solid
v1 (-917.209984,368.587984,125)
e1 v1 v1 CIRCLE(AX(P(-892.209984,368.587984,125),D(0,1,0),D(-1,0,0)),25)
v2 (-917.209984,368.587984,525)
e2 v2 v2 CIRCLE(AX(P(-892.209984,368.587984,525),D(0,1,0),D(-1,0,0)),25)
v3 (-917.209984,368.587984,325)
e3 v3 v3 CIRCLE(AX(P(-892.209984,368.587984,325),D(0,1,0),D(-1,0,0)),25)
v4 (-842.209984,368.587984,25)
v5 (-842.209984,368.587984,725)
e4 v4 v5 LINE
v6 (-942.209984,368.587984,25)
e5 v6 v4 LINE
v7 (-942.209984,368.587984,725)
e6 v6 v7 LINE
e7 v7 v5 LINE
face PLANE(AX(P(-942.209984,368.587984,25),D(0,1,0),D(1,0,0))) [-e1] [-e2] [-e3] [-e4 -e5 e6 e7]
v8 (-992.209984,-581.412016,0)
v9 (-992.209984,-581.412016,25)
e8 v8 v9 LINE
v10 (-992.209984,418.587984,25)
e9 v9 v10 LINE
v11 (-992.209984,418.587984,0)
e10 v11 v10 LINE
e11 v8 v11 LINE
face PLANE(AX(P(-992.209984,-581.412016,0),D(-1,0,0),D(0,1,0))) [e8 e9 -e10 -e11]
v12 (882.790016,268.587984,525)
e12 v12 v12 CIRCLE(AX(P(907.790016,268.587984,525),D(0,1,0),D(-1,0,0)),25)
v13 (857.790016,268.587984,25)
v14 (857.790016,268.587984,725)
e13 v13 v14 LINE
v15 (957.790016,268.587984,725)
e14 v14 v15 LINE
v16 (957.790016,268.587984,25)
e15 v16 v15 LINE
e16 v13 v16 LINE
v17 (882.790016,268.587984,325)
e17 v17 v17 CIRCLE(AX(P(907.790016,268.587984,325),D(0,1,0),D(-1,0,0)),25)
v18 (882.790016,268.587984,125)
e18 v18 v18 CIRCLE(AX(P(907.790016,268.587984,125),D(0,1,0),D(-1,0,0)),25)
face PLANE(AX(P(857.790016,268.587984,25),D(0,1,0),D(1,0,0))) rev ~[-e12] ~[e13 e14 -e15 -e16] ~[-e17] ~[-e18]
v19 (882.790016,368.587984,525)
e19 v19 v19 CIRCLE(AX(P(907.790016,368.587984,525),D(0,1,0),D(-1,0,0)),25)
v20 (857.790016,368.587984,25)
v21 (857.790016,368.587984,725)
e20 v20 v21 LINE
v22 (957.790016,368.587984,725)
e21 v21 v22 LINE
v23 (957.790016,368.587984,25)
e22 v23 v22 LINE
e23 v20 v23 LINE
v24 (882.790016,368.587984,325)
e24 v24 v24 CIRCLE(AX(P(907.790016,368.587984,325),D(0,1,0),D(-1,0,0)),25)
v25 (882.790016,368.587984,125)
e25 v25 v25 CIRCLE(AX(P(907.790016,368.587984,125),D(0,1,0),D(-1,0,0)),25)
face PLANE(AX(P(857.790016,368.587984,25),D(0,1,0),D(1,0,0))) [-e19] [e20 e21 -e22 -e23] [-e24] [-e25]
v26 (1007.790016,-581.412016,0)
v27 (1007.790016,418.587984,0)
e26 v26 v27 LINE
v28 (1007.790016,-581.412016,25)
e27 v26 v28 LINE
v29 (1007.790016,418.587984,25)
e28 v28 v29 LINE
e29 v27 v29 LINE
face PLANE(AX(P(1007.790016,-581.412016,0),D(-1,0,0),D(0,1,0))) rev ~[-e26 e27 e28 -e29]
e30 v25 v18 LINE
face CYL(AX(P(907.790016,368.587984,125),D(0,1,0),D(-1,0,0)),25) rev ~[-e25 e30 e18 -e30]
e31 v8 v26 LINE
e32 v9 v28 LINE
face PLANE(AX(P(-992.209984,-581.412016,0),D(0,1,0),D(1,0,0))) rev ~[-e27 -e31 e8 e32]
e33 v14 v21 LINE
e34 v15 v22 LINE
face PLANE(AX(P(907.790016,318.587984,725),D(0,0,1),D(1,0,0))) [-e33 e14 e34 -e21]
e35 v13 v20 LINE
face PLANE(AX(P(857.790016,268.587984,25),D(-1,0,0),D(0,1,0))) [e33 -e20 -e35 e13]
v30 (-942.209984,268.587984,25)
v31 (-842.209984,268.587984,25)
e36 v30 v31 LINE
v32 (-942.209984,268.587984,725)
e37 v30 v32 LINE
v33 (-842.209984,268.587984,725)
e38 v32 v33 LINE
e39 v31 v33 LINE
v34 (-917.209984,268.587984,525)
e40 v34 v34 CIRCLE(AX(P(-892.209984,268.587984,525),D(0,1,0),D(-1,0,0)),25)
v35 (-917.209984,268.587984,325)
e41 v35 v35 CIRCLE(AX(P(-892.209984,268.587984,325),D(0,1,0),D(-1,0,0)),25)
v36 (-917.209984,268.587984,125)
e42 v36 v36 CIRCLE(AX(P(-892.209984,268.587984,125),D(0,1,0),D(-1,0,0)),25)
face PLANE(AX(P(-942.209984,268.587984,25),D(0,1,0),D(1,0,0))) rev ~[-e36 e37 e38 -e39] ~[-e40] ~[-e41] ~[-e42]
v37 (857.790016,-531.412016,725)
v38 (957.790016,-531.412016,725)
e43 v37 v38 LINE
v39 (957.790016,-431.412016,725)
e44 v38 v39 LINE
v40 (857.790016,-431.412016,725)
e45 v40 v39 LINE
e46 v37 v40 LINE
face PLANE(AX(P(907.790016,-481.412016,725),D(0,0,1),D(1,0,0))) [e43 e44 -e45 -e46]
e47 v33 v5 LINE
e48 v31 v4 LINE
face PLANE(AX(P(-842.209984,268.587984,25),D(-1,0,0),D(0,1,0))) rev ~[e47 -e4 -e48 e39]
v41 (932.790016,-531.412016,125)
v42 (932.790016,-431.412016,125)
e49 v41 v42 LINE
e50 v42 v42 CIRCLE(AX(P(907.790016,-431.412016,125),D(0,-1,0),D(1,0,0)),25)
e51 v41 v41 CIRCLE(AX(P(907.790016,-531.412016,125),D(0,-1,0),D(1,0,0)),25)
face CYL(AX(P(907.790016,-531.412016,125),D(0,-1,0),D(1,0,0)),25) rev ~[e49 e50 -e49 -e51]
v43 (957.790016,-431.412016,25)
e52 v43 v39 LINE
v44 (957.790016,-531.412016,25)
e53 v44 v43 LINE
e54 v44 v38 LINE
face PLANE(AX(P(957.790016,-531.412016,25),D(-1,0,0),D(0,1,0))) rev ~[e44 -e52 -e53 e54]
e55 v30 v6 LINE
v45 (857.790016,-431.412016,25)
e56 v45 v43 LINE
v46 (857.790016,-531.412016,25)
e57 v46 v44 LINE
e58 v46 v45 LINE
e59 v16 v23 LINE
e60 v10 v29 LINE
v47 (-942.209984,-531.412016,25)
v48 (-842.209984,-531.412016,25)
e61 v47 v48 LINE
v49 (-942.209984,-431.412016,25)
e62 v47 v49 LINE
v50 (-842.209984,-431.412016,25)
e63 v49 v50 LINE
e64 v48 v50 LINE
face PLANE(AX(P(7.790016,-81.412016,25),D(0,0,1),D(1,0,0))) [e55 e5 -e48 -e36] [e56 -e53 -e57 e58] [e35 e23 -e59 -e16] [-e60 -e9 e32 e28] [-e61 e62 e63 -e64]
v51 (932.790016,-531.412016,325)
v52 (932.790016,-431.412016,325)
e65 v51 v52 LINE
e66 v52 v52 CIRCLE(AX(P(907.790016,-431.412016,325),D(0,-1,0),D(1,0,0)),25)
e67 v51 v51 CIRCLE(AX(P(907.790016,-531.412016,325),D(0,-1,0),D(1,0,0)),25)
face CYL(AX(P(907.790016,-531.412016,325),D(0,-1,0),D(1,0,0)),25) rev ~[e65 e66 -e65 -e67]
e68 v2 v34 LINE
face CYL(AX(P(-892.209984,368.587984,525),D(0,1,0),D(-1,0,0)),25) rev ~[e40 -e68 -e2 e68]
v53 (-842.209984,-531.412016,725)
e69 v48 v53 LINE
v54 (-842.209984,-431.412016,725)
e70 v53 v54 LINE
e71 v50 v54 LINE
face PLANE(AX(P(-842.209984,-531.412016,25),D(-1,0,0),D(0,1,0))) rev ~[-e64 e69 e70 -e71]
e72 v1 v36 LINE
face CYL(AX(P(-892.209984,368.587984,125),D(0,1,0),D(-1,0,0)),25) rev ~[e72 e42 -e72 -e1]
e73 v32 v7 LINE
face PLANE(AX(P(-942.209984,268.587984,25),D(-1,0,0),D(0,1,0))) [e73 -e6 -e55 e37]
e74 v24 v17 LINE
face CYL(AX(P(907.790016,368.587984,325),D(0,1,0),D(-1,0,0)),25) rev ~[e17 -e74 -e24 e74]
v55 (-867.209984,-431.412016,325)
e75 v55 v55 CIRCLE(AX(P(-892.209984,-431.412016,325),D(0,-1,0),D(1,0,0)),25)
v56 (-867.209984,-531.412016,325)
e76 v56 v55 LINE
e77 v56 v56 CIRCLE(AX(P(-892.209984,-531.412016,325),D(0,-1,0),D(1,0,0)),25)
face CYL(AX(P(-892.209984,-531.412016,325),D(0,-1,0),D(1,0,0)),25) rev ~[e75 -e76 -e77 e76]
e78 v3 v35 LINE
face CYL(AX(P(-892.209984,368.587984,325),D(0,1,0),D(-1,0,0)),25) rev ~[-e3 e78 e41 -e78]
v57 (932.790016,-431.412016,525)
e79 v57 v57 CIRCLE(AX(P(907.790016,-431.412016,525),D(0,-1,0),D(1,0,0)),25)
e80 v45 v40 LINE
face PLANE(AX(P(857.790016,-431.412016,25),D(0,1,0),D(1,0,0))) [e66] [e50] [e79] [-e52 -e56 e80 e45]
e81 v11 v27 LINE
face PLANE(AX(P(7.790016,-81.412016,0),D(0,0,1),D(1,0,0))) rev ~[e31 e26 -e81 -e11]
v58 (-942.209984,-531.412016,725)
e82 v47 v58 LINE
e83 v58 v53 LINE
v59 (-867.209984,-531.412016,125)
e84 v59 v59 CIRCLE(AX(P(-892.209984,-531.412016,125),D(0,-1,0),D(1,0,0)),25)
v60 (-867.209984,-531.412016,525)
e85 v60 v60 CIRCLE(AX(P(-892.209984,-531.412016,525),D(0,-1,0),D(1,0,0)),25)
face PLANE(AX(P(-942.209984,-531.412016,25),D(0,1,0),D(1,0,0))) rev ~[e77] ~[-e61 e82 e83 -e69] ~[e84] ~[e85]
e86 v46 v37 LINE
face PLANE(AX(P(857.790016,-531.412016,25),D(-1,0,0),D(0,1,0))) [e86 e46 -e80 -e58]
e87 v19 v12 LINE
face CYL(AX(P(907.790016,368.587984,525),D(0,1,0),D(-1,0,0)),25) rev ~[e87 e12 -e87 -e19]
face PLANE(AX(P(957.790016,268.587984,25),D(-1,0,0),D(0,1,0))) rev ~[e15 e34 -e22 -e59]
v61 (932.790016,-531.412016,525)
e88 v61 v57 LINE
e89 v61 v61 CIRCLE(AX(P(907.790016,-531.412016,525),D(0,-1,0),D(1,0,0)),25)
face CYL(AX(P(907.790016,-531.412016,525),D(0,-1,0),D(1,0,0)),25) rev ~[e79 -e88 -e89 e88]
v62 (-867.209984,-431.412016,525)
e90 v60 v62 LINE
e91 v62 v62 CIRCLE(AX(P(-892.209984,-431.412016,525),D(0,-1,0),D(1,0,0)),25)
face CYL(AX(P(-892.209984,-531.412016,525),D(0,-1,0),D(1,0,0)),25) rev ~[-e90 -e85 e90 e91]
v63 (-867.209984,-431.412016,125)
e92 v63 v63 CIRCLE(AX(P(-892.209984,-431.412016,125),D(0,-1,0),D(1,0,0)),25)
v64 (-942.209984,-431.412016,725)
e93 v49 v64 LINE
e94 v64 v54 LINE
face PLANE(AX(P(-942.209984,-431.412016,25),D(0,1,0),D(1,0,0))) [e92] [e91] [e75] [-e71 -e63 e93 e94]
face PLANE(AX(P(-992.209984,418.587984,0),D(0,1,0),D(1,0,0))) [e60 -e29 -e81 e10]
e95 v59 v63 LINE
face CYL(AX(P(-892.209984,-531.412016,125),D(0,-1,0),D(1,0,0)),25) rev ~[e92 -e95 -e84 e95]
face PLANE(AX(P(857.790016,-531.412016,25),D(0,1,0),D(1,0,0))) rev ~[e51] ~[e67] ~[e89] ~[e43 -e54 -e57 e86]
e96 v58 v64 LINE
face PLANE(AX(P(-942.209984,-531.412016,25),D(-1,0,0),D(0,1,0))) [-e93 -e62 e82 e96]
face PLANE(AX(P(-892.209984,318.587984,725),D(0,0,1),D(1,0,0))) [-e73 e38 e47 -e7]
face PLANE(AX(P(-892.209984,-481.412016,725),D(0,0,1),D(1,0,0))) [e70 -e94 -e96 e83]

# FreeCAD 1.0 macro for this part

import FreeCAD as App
import Part
import Sketcher

V = App.Vector


def add_polygon(sketch, points):
    """Adds a closed chain of lines whose ends are joined by coincident constraints."""
    first, n = sketch.GeometryCount, len(points)
    for a, b in zip(points, points[1:] + points[:1]):
        sketch.addGeometry(Part.LineSegment(App.Vector(*a, 0), App.Vector(*b, 0)), False)
    for i in range(n):
        sketch.addConstraint(Sketcher.Constraint("Coincident", first + i, 2, first + (i + 1) % n, 1))

doc = App.newDocument("Part")
body = doc.addObject("PartDesign::Body", "Body")

# Sketch on XY plane
sketch1 = doc.addObject("Sketcher::SketchObject", "Sketch")
body.addObject(sketch1)
sketch1.AttachmentSupport = (doc.XY_Plane, [""])
sketch1.MapMode = "FlatFace"
add_polygon(sketch1, [(-992.209984, 418.587984), (-992.209984, -581.412016), (1007.790016, -581.412016), (1007.790016, 418.587984)])  # lines 0-3
sketch1.addConstraint([
    Sketcher.Constraint("Vertical", 0),
    Sketcher.Constraint("Horizontal", 1),
    Sketcher.Constraint("Vertical", 2),
    Sketcher.Constraint("Horizontal", 3),
    Sketcher.Constraint("DistanceX", 1, 1, 1, 2, 2000.0),
    Sketcher.Constraint("DistanceY", 0, 2, 0, 1, 1000.0),
    Sketcher.Constraint("DistanceX", 0, 2, -1, 1, 992.209984),
    Sketcher.Constraint("DistanceY", 0, 2, -1, 1, 581.412016),
])
pad1 = doc.addObject("PartDesign::Pad", "Pad")
body.addObject(pad1)
pad1.Profile = sketch1
pad1.Length = 25

# Sketch on XY plane
sketch2 = doc.addObject("Sketcher::SketchObject", "Sketch001")
body.addObject(sketch2)
sketch2.AttachmentSupport = (doc.XY_Plane, [""])
sketch2.MapMode = "FlatFace"
sketch2.AttachmentOffset = App.Placement(V(0, 0, 25), App.Rotation())
add_polygon(sketch2, [(-942.209984, 368.587984), (-942.209984, 268.587984), (-842.209984, 268.587984), (-842.209984, 368.587984)])  # lines 0-3
sketch2.addConstraint([
    Sketcher.Constraint("Vertical", 0),
    Sketcher.Constraint("Horizontal", 1),
    Sketcher.Constraint("Vertical", 2),
    Sketcher.Constraint("Horizontal", 3),
    Sketcher.Constraint("Equal", 3, 0),
    Sketcher.Constraint("DistanceX", 1, 1, 1, 2, 100.0),
    Sketcher.Constraint("DistanceX", 0, 2, -1, 1, 942.209984),
    Sketcher.Constraint("DistanceY", -1, 1, 0, 2, 268.587984),
])
pad2 = doc.addObject("PartDesign::Pad", "Pad001")
body.addObject(pad2)
pad2.Profile = sketch2
pad2.Length = 700

# Sketch on XZ plane
sketch3 = doc.addObject("Sketcher::SketchObject", "Sketch002")
body.addObject(sketch3)
sketch3.AttachmentSupport = (doc.XZ_Plane, [""])
sketch3.MapMode = "FlatFace"
sketch3.AttachmentOffset = App.Placement(V(0, 0, -368.587984), App.Rotation())
sketch3.addGeometry([
    Part.Circle(V(-892.209984, 125, 0), V(0, 0, 1), 25),
    Part.Circle(V(-892.209984, 325, 0), V(0, 0, 1), 25),
    Part.Circle(V(-892.209984, 525, 0), V(0, 0, 1), 25),
], False)
sketch3.addConstraint([
    Sketcher.Constraint("Equal", 0, 1),
    Sketcher.Constraint("Equal", 1, 2),
    Sketcher.Constraint("Vertical", 0, 3, 1, 3),
    Sketcher.Constraint("Vertical", 1, 3, 2, 3),
    Sketcher.Constraint("Diameter", 0, 50.0),
    Sketcher.Constraint("DistanceY", -1, 1, 0, 3, 125.0),
    Sketcher.Constraint("DistanceY", -1, 1, 1, 3, 325.0),
    Sketcher.Constraint("DistanceY", -1, 1, 2, 3, 525.0),
    Sketcher.Constraint("DistanceX", 0, 3, -1, 1, 892.209984),
])
pocket1 = doc.addObject("PartDesign::Pocket", "Pocket")
body.addObject(pocket1)
pocket1.Profile = sketch3
pocket1.Length = 100
pocket1.Reversed = True

# Sketch on XY plane
sketch4 = doc.addObject("Sketcher::SketchObject", "Sketch003")
body.addObject(sketch4)
sketch4.AttachmentSupport = (doc.XY_Plane, [""])
sketch4.MapMode = "FlatFace"
sketch4.AttachmentOffset = App.Placement(V(0, 0, 25), App.Rotation())
add_polygon(sketch4, [(857.790016, 368.587984), (857.790016, 268.587984), (957.790016, 268.587984), (957.790016, 368.587984)])  # lines 0-3
sketch4.addConstraint([
    Sketcher.Constraint("Vertical", 0),
    Sketcher.Constraint("Horizontal", 1),
    Sketcher.Constraint("Vertical", 2),
    Sketcher.Constraint("Horizontal", 3),
    Sketcher.Constraint("Equal", 3, 0),
    Sketcher.Constraint("DistanceX", 1, 1, 1, 2, 100.0),
    Sketcher.Constraint("DistanceX", -1, 1, 0, 2, 857.790016),
    Sketcher.Constraint("DistanceY", -1, 1, 0, 2, 268.587984),
])
pad3 = doc.addObject("PartDesign::Pad", "Pad002")
body.addObject(pad3)
pad3.Profile = sketch4
pad3.Length = 700

# Sketch on XZ plane
sketch5 = doc.addObject("Sketcher::SketchObject", "Sketch004")
body.addObject(sketch5)
sketch5.AttachmentSupport = (doc.XZ_Plane, [""])
sketch5.MapMode = "FlatFace"
sketch5.AttachmentOffset = App.Placement(V(0, 0, -368.587984), App.Rotation())
sketch5.addGeometry([
    Part.Circle(V(907.790016, 125, 0), V(0, 0, 1), 25),
    Part.Circle(V(907.790016, 325, 0), V(0, 0, 1), 25),
    Part.Circle(V(907.790016, 525, 0), V(0, 0, 1), 25),
], False)
sketch5.addConstraint([
    Sketcher.Constraint("Equal", 0, 1),
    Sketcher.Constraint("Equal", 1, 2),
    Sketcher.Constraint("Vertical", 0, 3, 1, 3),
    Sketcher.Constraint("Vertical", 1, 3, 2, 3),
    Sketcher.Constraint("Diameter", 0, 50.0),
    Sketcher.Constraint("DistanceY", -1, 1, 0, 3, 125.0),
    Sketcher.Constraint("DistanceY", -1, 1, 1, 3, 325.0),
    Sketcher.Constraint("DistanceY", -1, 1, 2, 3, 525.0),
    Sketcher.Constraint("DistanceX", -1, 1, 0, 3, 907.790016),
])
pocket2 = doc.addObject("PartDesign::Pocket", "Pocket001")
body.addObject(pocket2)
pocket2.Profile = sketch5
pocket2.Length = 100
pocket2.Reversed = True

# Sketch on XY plane
sketch6 = doc.addObject("Sketcher::SketchObject", "Sketch005")
body.addObject(sketch6)
sketch6.AttachmentSupport = (doc.XY_Plane, [""])
sketch6.MapMode = "FlatFace"
sketch6.AttachmentOffset = App.Placement(V(0, 0, 25), App.Rotation())
add_polygon(sketch6, [(-942.209984, -431.412016), (-942.209984, -531.412016), (-842.209984, -531.412016), (-842.209984, -431.412016)])  # lines 0-3
sketch6.addConstraint([
    Sketcher.Constraint("Vertical", 0),
    Sketcher.Constraint("Horizontal", 1),
    Sketcher.Constraint("Vertical", 2),
    Sketcher.Constraint("Horizontal", 3),
    Sketcher.Constraint("Equal", 3, 0),
    Sketcher.Constraint("DistanceX", 1, 1, 1, 2, 100.0),
    Sketcher.Constraint("DistanceX", 0, 2, -1, 1, 942.209984),
    Sketcher.Constraint("DistanceY", 0, 2, -1, 1, 531.412016),
])
pad4 = doc.addObject("PartDesign::Pad", "Pad003")
body.addObject(pad4)
pad4.Profile = sketch6
pad4.Length = 700

# Sketch on XZ plane
sketch7 = doc.addObject("Sketcher::SketchObject", "Sketch006")
body.addObject(sketch7)
sketch7.AttachmentSupport = (doc.XZ_Plane, [""])
sketch7.MapMode = "FlatFace"
sketch7.AttachmentOffset = App.Placement(V(0, 0, 531.412016), App.Rotation())
sketch7.addGeometry([
    Part.Circle(V(-892.209984, 525, 0), V(0, 0, 1), 25),
    Part.Circle(V(-892.209984, 325, 0), V(0, 0, 1), 25),
    Part.Circle(V(-892.209984, 125, 0), V(0, 0, 1), 25),
], False)
sketch7.addConstraint([
    Sketcher.Constraint("Equal", 0, 1),
    Sketcher.Constraint("Equal", 1, 2),
    Sketcher.Constraint("Vertical", 0, 3, 1, 3),
    Sketcher.Constraint("Vertical", 1, 3, 2, 3),
    Sketcher.Constraint("Diameter", 0, 50.0),
    Sketcher.Constraint("DistanceY", -1, 1, 0, 3, 525.0),
    Sketcher.Constraint("DistanceY", -1, 1, 1, 3, 325.0),
    Sketcher.Constraint("DistanceY", -1, 1, 2, 3, 125.0),
    Sketcher.Constraint("DistanceX", 0, 3, -1, 1, 892.209984),
])
pocket3 = doc.addObject("PartDesign::Pocket", "Pocket002")
body.addObject(pocket3)
pocket3.Profile = sketch7
pocket3.Length = 100

# Sketch on XY plane
sketch8 = doc.addObject("Sketcher::SketchObject", "Sketch007")
body.addObject(sketch8)
sketch8.AttachmentSupport = (doc.XY_Plane, [""])
sketch8.MapMode = "FlatFace"
sketch8.AttachmentOffset = App.Placement(V(0, 0, 25), App.Rotation())
add_polygon(sketch8, [(857.790016, -431.412016), (857.790016, -531.412016), (957.790016, -531.412016), (957.790016, -431.412016)])  # lines 0-3
sketch8.addConstraint([
    Sketcher.Constraint("Vertical", 0),
    Sketcher.Constraint("Horizontal", 1),
    Sketcher.Constraint("Vertical", 2),
    Sketcher.Constraint("Horizontal", 3),
    Sketcher.Constraint("Equal", 3, 0),
    Sketcher.Constraint("DistanceX", 1, 1, 1, 2, 100.0),
    Sketcher.Constraint("DistanceX", -1, 1, 0, 2, 857.790016),
    Sketcher.Constraint("DistanceY", 0, 2, -1, 1, 531.412016),
])
pad5 = doc.addObject("PartDesign::Pad", "Pad004")
body.addObject(pad5)
pad5.Profile = sketch8
pad5.Length = 700

# Sketch on XZ plane
sketch9 = doc.addObject("Sketcher::SketchObject", "Sketch008")
body.addObject(sketch9)
sketch9.AttachmentSupport = (doc.XZ_Plane, [""])
sketch9.MapMode = "FlatFace"
sketch9.AttachmentOffset = App.Placement(V(0, 0, 531.412016), App.Rotation())
sketch9.addGeometry([
    Part.Circle(V(907.790016, 525, 0), V(0, 0, 1), 25),
    Part.Circle(V(907.790016, 325, 0), V(0, 0, 1), 25),
    Part.Circle(V(907.790016, 125, 0), V(0, 0, 1), 25),
], False)
sketch9.addConstraint([
    Sketcher.Constraint("Equal", 0, 1),
    Sketcher.Constraint("Equal", 1, 2),
    Sketcher.Constraint("Vertical", 0, 3, 1, 3),
    Sketcher.Constraint("Vertical", 1, 3, 2, 3),
    Sketcher.Constraint("Diameter", 0, 50.0),
    Sketcher.Constraint("DistanceY", -1, 1, 0, 3, 525.0),
    Sketcher.Constraint("DistanceY", -1, 1, 1, 3, 325.0),
    Sketcher.Constraint("DistanceY", -1, 1, 2, 3, 125.0),
    Sketcher.Constraint("DistanceX", -1, 1, 0, 3, 907.790016),
])
pocket4 = doc.addObject("PartDesign::Pocket", "Pocket003")
body.addObject(pocket4)
pocket4.Profile = sketch9
pocket4.Length = 100

doc.recompute()
